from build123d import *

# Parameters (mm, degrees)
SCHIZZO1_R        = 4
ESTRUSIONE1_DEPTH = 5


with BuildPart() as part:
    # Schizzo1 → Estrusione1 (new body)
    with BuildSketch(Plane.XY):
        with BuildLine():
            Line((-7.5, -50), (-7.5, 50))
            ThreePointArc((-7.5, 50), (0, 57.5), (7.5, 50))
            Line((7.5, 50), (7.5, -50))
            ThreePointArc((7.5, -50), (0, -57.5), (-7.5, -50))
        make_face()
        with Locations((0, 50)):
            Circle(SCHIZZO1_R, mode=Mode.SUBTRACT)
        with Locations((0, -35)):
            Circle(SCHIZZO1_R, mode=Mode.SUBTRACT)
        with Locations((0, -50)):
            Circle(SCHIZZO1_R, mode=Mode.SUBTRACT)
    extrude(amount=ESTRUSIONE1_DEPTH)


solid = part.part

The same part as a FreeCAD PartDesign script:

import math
import FreeCAD as App
import Part
import Sketcher
from FreeCAD import Vector
Q = App.Units.Quantity

doc = App.newDocument("Part")
body = doc.addObject("PartDesign::Body", "Body")

# Sketch on XY plane
sketch1 = body.newObject("Sketcher::SketchObject", "Sketch")
sketch1.AttachmentSupport = (doc.getObject("XY_Plane"), [""])
sketch1.MapMode = "FlatFace"
sketch1.addGeometry(Part.LineSegment(Vector(-7.5, 50, 0), Vector(-7.5, -50, 0)), False)
sketch1.addGeometry(Part.ArcOfCircle(Part.Circle(Vector(0, -50, 0), Vector(0, 0, 1), 7.5), math.radians(180), math.radians(360)), False)
sketch1.addGeometry(Part.LineSegment(Vector(7.5, -50, 0), Vector(7.5, 50, 0)), False)
sketch1.addGeometry(Part.ArcOfCircle(Part.Circle(Vector(0, 50, 0), Vector(0, 0, 1), 7.5), math.radians(0), math.radians(180)), False)
sketch1.addGeometry(Part.Circle(Vector(0, -50, 0), Vector(0, 0, 1), 4), False)
sketch1.addGeometry(Part.Circle(Vector(0, -35, 0), Vector(0, 0, 1), 4), False)
sketch1.addGeometry(Part.Circle(Vector(0, 50, 0), Vector(0, 0, 1), 4), False)
sketch1.addConstraint(Sketcher.Constraint("Tangent", 0, 2, 1, 1))
sketch1.addConstraint(Sketcher.Constraint("Tangent", 1, 2, 2, 1))
sketch1.addConstraint(Sketcher.Constraint("Tangent", 2, 2, 3, 1))
sketch1.addConstraint(Sketcher.Constraint("Tangent", 3, 2, 0, 1))
sketch1.addConstraint(Sketcher.Constraint("Vertical", 0))
sketch1.addConstraint(Sketcher.Constraint("Vertical", 2))
sketch1.addConstraint(Sketcher.Constraint("Coincident", 4, 3, 1, 3))
sketch1.addConstraint(Sketcher.Constraint("Coincident", 6, 3, 3, 3))
sketch1.addConstraint(Sketcher.Constraint("Equal", 4, 5))
sketch1.addConstraint(Sketcher.Constraint("Equal", 5, 6))
sketch1.addConstraint(Sketcher.Constraint("Symmetric", 1, 3, 3, 3, -1, 1))
sketch1.addConstraint(Sketcher.Constraint("PointOnObject", 5, 3, -2))
sketch1.addConstraint(Sketcher.Constraint("Diameter", 4, Q("8 mm")))
sketch1.addConstraint(Sketcher.Constraint("Radius", 1, Q("7.5 mm")))
sketch1.addConstraint(Sketcher.Constraint("DistanceY", 0, 2, 0, 1, Q("100 mm")))
sketch1.addConstraint(Sketcher.Constraint("DistanceY", 5, 3, -1, 1, Q("35 mm")))
pad1 = body.newObject("PartDesign::Pad", "Pad")
pad1.Profile = sketch1
pad1.Length = 5

doc.recompute()
